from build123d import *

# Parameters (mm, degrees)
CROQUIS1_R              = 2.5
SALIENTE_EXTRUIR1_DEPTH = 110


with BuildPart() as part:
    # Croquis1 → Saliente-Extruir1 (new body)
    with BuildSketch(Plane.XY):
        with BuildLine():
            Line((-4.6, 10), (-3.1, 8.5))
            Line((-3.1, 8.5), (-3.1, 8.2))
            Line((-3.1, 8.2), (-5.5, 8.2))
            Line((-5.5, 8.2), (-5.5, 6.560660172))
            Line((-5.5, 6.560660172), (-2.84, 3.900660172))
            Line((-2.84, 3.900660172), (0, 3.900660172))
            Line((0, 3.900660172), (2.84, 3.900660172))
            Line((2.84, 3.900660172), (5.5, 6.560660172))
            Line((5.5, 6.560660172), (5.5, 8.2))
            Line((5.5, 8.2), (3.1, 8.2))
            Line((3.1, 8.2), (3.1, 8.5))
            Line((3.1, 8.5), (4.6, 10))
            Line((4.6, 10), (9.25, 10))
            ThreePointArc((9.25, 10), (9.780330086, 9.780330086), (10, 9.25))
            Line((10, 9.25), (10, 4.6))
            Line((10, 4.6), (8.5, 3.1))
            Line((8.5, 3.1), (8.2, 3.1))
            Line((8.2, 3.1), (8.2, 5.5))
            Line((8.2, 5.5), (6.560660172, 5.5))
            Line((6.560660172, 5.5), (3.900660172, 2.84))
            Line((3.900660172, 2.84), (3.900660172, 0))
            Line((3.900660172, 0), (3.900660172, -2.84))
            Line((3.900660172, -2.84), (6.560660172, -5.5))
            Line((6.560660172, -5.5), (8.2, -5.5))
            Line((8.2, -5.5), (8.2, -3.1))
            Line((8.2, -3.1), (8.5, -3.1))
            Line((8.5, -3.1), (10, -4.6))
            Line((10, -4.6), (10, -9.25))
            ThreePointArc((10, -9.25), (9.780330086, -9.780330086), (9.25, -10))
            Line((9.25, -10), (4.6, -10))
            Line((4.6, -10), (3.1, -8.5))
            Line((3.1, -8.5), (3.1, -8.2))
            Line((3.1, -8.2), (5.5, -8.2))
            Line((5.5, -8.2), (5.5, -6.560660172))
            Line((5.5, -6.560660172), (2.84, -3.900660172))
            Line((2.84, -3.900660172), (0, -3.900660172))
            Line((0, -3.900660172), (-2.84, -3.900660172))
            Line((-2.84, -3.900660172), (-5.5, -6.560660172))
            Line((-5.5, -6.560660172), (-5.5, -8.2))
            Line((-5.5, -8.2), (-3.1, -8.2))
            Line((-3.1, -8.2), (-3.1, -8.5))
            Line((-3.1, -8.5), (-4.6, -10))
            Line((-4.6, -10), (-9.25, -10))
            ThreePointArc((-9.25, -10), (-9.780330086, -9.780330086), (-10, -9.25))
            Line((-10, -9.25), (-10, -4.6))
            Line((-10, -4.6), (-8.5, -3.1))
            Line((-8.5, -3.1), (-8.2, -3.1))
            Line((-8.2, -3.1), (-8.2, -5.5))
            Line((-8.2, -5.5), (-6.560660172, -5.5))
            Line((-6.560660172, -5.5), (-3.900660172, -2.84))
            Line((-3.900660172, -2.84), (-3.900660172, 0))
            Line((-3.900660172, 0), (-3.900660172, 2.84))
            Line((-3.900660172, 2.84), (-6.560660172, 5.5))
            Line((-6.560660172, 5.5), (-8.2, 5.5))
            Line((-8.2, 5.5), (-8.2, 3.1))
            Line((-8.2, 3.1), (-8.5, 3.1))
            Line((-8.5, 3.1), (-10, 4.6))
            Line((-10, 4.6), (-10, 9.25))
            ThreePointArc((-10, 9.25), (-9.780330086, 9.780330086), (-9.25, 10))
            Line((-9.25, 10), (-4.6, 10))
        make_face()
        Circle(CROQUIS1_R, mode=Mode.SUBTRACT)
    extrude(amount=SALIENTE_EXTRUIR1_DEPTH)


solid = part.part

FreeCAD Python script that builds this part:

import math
import FreeCAD as App
import Part
import Sketcher

doc = App.newDocument("Part")
body = doc.addObject("PartDesign::Body", "Body")

# Sketch on XY plane
sketch1 = body.newObject("Sketcher::SketchObject", "Sketch")
sketch1.AttachmentSupport = (doc.getObject("XY_Plane"), [""])
sketch1.MapMode = "FlatFace"
sketch1.addGeometry(Part.LineSegment(App.Vector(-3.1, 8.5, 0), App.Vector(-4.6, 10, 0)), False)
sketch1.addGeometry(Part.LineSegment(App.Vector(-4.6, 10, 0), App.Vector(-9.25, 10, 0)), False)
sketch1.addGeometry(Part.ArcOfCircle(Part.Circle(App.Vector(-9.25, 9.25, 0), App.Vector(0, 0, 1), 0.75), math.radians(90), math.radians(180)), False)
sketch1.addGeometry(Part.LineSegment(App.Vector(-10, 9.25, 0), App.Vector(-10, 4.6, 0)), False)
sketch1.addGeometry(Part.LineSegment(App.Vector(-10, 4.6, 0), App.Vector(-8.5, 3.1, 0)), False)
sketch1.addGeometry(Part.LineSegment(App.Vector(-8.5, 3.1, 0), App.Vector(-8.2, 3.1, 0)), False)
sketch1.addGeometry(Part.LineSegment(App.Vector(-8.2, 3.1, 0), App.Vector(-8.2, 5.5, 0)), False)
sketch1.addGeometry(Part.LineSegment(App.Vector(-8.2, 5.5, 0), App.Vector(-6.56, 5.5, 0)), False)
sketch1.addGeometry(Part.LineSegment(App.Vector(-6.56, 5.5, 0), App.Vector(-3.9, 2.84, 0)), False)
sketch1.addGeometry(Part.LineSegment(App.Vector(-3.9, 2.84, 0), App.Vector(-3.9, -2.84, 0)), False)
sketch1.addGeometry(Part.LineSegment(App.Vector(-3.9, -2.84, 0), App.Vector(-6.56, -5.5, 0)), False)
sketch1.addGeometry(Part.LineSegment(App.Vector(-6.56, -5.5, 0), App.Vector(-8.2, -5.5, 0)), False)
sketch1.addGeometry(Part.LineSegment(App.Vector(-8.2, -5.5, 0), App.Vector(-8.2, -3.1, 0)), False)
sketch1.addGeometry(Part.LineSegment(App.Vector(-8.2, -3.1, 0), App.Vector(-8.5, -3.1, 0)), False)
sketch1.addGeometry(Part.LineSegment(App.Vector(-8.5, -3.1, 0), App.Vector(-10, -4.6, 0)), False)
sketch1.addGeometry(Part.LineSegment(App.Vector(-10, -4.6, 0), App.Vector(-10, -9.25, 0)), False)
sketch1.addGeometry(Part.ArcOfCircle(Part.Circle(App.Vector(-9.25, -9.25, 0), App.Vector(0, 0, 1), 0.75), math.radians(180), math.radians(270)), False)
sketch1.addGeometry(Part.LineSegment(App.Vector(-9.25, -10, 0), App.Vector(-4.6, -10, 0)), False)
sketch1.addGeometry(Part.LineSegment(App.Vector(-4.6, -10, 0), App.Vector(-3.1, -8.5, 0)), False)
sketch1.addGeometry(Part.LineSegment(App.Vector(-3.1, -8.5, 0), App.Vector(-3.1, -8.2, 0)), False)
sketch1.addGeometry(Part.LineSegment(App.Vector(-3.1, -8.2, 0), App.Vector(-5.5, -8.2, 0)), False)
sketch1.addGeometry(Part.LineSegment(App.Vector(-5.5, -8.2, 0), App.Vector(-5.5, -6.56, 0)), False)
sketch1.addGeometry(Part.LineSegment(App.Vector(-5.5, -6.56, 0), App.Vector(-2.84, -3.9, 0)), False)
sketch1.addGeometry(Part.LineSegment(App.Vector(-2.84, -3.9, 0), App.Vector(2.84, -3.9, 0)), False)
sketch1.addGeometry(Part.LineSegment(App.Vector(2.84, -3.9, 0), App.Vector(5.5, -6.56, 0)), False)
sketch1.addGeometry(Part.LineSegment(App.Vector(5.5, -6.56, 0), App.Vector(5.5, -8.2, 0)), False)
sketch1.addGeometry(Part.LineSegment(App.Vector(5.5, -8.2, 0), App.Vector(3.1, -8.2, 0)), False)
sketch1.addGeometry(Part.LineSegment(App.Vector(3.1, -8.2, 0), App.Vector(3.1, -8.5, 0)), False)
sketch1.addGeometry(Part.LineSegment(App.Vector(3.1, -8.5, 0), App.Vector(4.6, -10, 0)), False)
sketch1.addGeometry(Part.LineSegment(App.Vector(4.6, -10, 0), App.Vector(9.25, -10, 0)), False)
sketch1.addGeometry(Part.ArcOfCircle(Part.Circle(App.Vector(9.25, -9.25, 0), App.Vector(0, 0, 1), 0.75), math.radians(-90), math.radians(0)), False)
sketch1.addGeometry(Part.LineSegment(App.Vector(10, -9.25, 0), App.Vector(10, -4.6, 0)), False)
sketch1.addGeometry(Part.LineSegment(App.Vector(10, -4.6, 0), App.Vector(8.5, -3.1, 0)), False)
sketch1.addGeometry(Part.LineSegment(App.Vector(8.5, -3.1, 0), App.Vector(8.2, -3.1, 0)), False)
sketch1.addGeometry(Part.LineSegment(App.Vector(8.2, -3.1, 0), App.Vector(8.2, -5.5, 0)), False)
sketch1.addGeometry(Part.LineSegment(App.Vector(8.2, -5.5, 0), App.Vector(6.56, -5.5, 0)), False)
sketch1.addGeometry(Part.LineSegment(App.Vector(6.56, -5.5, 0), App.Vector(3.9, -2.84, 0)), False)
sketch1.addGeometry(Part.LineSegment(App.Vector(3.9, -2.84, 0), App.Vector(3.9, 2.84, 0)), False)
sketch1.addGeometry(Part.LineSegment(App.Vector(3.9, 2.84, 0), App.Vector(6.56, 5.5, 0)), False)
sketch1.addGeometry(Part.LineSegment(App.Vector(6.56, 5.5, 0), App.Vector(8.2, 5.5, 0)), False)
sketch1.addGeometry(Part.LineSegment(App.Vector(8.2, 5.5, 0), App.Vector(8.2, 3.1, 0)), False)
sketch1.addGeometry(Part.LineSegment(App.Vector(8.2, 3.1, 0), App.Vector(8.5, 3.1, 0)), False)
sketch1.addGeometry(Part.LineSegment(App.Vector(8.5, 3.1, 0), App.Vector(10, 4.6, 0)), False)
sketch1.addGeometry(Part.LineSegment(App.Vector(10, 4.6, 0), App.Vector(10, 9.25, 0)), False)
sketch1.addGeometry(Part.ArcOfCircle(Part.Circle(App.Vector(9.25, 9.25, 0), App.Vector(0, 0, 1), 0.75), math.radians(0), math.radians(90)), False)
sketch1.addGeometry(Part.LineSegment(App.Vector(9.25, 10, 0), App.Vector(4.6, 10, 0)), False)
sketch1.addGeometry(Part.LineSegment(App.Vector(4.6, 10, 0), App.Vector(3.1, 8.5, 0)), False)
sketch1.addGeometry(Part.LineSegment(App.Vector(3.1, 8.5, 0), App.Vector(3.1, 8.2, 0)), False)
sketch1.addGeometry(Part.LineSegment(App.Vector(3.1, 8.2, 0), App.Vector(5.5, 8.2, 0)), False)
sketch1.addGeometry(Part.LineSegment(App.Vector(5.5, 8.2, 0), App.Vector(5.5, 6.56, 0)), False)
sketch1.addGeometry(Part.LineSegment(App.Vector(5.5, 6.56, 0), App.Vector(2.84, 3.9, 0)), False)
sketch1.addGeometry(Part.LineSegment(App.Vector(2.84, 3.9, 0), App.Vector(-2.84, 3.9, 0)), False)
sketch1.addGeometry(Part.LineSegment(App.Vector(-2.84, 3.9, 0), App.Vector(-5.5, 6.56, 0)), False)
sketch1.addGeometry(Part.LineSegment(App.Vector(-5.5, 6.56, 0), App.Vector(-5.5, 8.2, 0)), False)
sketch1.addGeometry(Part.LineSegment(App.Vector(-5.5, 8.2, 0), App.Vector(-3.1, 8.2, 0)), False)
sketch1.addGeometry(Part.LineSegment(App.Vector(-3.1, 8.2, 0), App.Vector(-3.1, 8.5, 0)), False)
sketch1.addGeometry(Part.Circle(App.Vector(0, 0, 0), App.Vector(0, 0, 1), 2.5), False)
sketch1.addConstraint(Sketcher.Constraint("Coincident", 0, 2, 1, 1))
sketch1.addConstraint(Sketcher.Constraint("Tangent", 1, 2, 2, 1))
sketch1.addConstraint(Sketcher.Constraint("Tangent", 2, 2, 3, 1))
sketch1.addConstraint(Sketcher.Constraint("Coincident", 3, 2, 4, 1))
sketch1.addConstraint(Sketcher.Constraint("Coincident", 4, 2, 5, 1))
sketch1.addConstraint(Sketcher.Constraint("Coincident", 5, 2, 6, 1))
sketch1.addConstraint(Sketcher.Constraint("Coincident", 6, 2, 7, 1))
sketch1.addConstraint(Sketcher.Constraint("Coincident", 7, 2, 8, 1))
sketch1.addConstraint(Sketcher.Constraint("Coincident", 8, 2, 9, 1))
sketch1.addConstraint(Sketcher.Constraint("Coincident", 9, 2, 10, 1))
sketch1.addConstraint(Sketcher.Constraint("Coincident", 10, 2, 11, 1))
sketch1.addConstraint(Sketcher.Constraint("Coincident", 11, 2, 12, 1))
sketch1.addConstraint(Sketcher.Constraint("Coincident", 12, 2, 13, 1))
sketch1.addConstraint(Sketcher.Constraint("Coincident", 13, 2, 14, 1))
sketch1.addConstraint(Sketcher.Constraint("Coincident", 14, 2, 15, 1))
sketch1.addConstraint(Sketcher.Constraint("Tangent", 15, 2, 16, 1))
sketch1.addConstraint(Sketcher.Constraint("Tangent", 16, 2, 17, 1))
sketch1.addConstraint(Sketcher.Constraint("Coincident", 17, 2, 18, 1))
sketch1.addConstraint(Sketcher.Constraint("Coincident", 18, 2, 19, 1))
sketch1.addConstraint(Sketcher.Constraint("Coincident", 19, 2, 20, 1))
sketch1.addConstraint(Sketcher.Constraint("Coincident", 20, 2, 21, 1))
sketch1.addConstraint(Sketcher.Constraint("Coincident", 21, 2, 22, 1))
sketch1.addConstraint(Sketcher.Constraint("Coincident", 22, 2, 23, 1))
sketch1.addConstraint(Sketcher.Constraint("Coincident", 23, 2, 24, 1))
sketch1.addConstraint(Sketcher.Constraint("Coincident", 24, 2, 25, 1))
sketch1.addConstraint(Sketcher.Constraint("Coincident", 25, 2, 26, 1))
sketch1.addConstraint(Sketcher.Constraint("Coincident", 26, 2, 27, 1))
sketch1.addConstraint(Sketcher.Constraint("Coincident", 27, 2, 28, 1))
sketch1.addConstraint(Sketcher.Constraint("Coincident", 28, 2, 29, 1))
sketch1.addConstraint(Sketcher.Constraint("Tangent", 29, 2, 30, 1))
sketch1.addConstraint(Sketcher.Constraint("Tangent", 30, 2, 31, 1))
sketch1.addConstraint(Sketcher.Constraint("Coincident", 31, 2, 32, 1))
sketch1.addConstraint(Sketcher.Constraint("Coincident", 32, 2, 33, 1))
sketch1.addConstraint(Sketcher.Constraint("Coincident", 33, 2, 34, 1))
sketch1.addConstraint(Sketcher.Constraint("Coincident", 34, 2, 35, 1))
sketch1.addConstraint(Sketcher.Constraint("Coincident", 35, 2, 36, 1))
sketch1.addConstraint(Sketcher.Constraint("Coincident", 36, 2, 37, 1))
sketch1.addConstraint(Sketcher.Constraint("Coincident", 37, 2, 38, 1))
sketch1.addConstraint(Sketcher.Constraint("Coincident", 38, 2, 39, 1))
sketch1.addConstraint(Sketcher.Constraint("Coincident", 39, 2, 40, 1))
sketch1.addConstraint(Sketcher.Constraint("Coincident", 40, 2, 41, 1))
sketch1.addConstraint(Sketcher.Constraint("Coincident", 41, 2, 42, 1))
sketch1.addConstraint(Sketcher.Constraint("Coincident", 42, 2, 43, 1))
sketch1.addConstraint(Sketcher.Constraint("Tangent", 43, 2, 44, 1))
sketch1.addConstraint(Sketcher.Constraint("Tangent", 44, 2, 45, 1))
sketch1.addConstraint(Sketcher.Constraint("Coincident", 45, 2, 46, 1))
sketch1.addConstraint(Sketcher.Constraint("Coincident", 46, 2, 47, 1))
sketch1.addConstraint(Sketcher.Constraint("Coincident", 47, 2, 48, 1))
sketch1.addConstraint(Sketcher.Constraint("Coincident", 48, 2, 49, 1))
sketch1.addConstraint(Sketcher.Constraint("Coincident", 49, 2, 50, 1))
sketch1.addConstraint(Sketcher.Constraint("Coincident", 50, 2, 51, 1))
sketch1.addConstraint(Sketcher.Constraint("Coincident", 51, 2, 52, 1))
sketch1.addConstraint(Sketcher.Constraint("Coincident", 52, 2, 53, 1))
sketch1.addConstraint(Sketcher.Constraint("Coincident", 53, 2, 54, 1))
sketch1.addConstraint(Sketcher.Constraint("Coincident", 54, 2, 55, 1))
sketch1.addConstraint(Sketcher.Constraint("Coincident", 55, 2, 0, 1))
sketch1.addConstraint(Sketcher.Constraint("Horizontal", 1))
sketch1.addConstraint(Sketcher.Constraint("Vertical", 3))
sketch1.addConstraint(Sketcher.Constraint("Horizontal", 5))
sketch1.addConstraint(Sketcher.Constraint("Vertical", 6))
sketch1.addConstraint(Sketcher.Constraint("Horizontal", 7))
sketch1.addConstraint(Sketcher.Constraint("Vertical", 9))
sketch1.addConstraint(Sketcher.Constraint("Horizontal", 11))
sketch1.addConstraint(Sketcher.Constraint("Vertical", 12))
sketch1.addConstraint(Sketcher.Constraint("Horizontal", 13))
sketch1.addConstraint(Sketcher.Constraint("Vertical", 15))
sketch1.addConstraint(Sketcher.Constraint("Horizontal", 17))
sketch1.addConstraint(Sketcher.Constraint("Vertical", 19))
sketch1.addConstraint(Sketcher.Constraint("Horizontal", 20))
sketch1.addConstraint(Sketcher.Constraint("Vertical", 21))
sketch1.addConstraint(Sketcher.Constraint("Horizontal", 23))
sketch1.addConstraint(Sketcher.Constraint("Vertical", 25))
sketch1.addConstraint(Sketcher.Constraint("Horizontal", 26))
sketch1.addConstraint(Sketcher.Constraint("Vertical", 27))
sketch1.addConstraint(Sketcher.Constraint("Horizontal", 29))
sketch1.addConstraint(Sketcher.Constraint("Vertical", 31))
sketch1.addConstraint(Sketcher.Constraint("Horizontal", 33))
sketch1.addConstraint(Sketcher.Constraint("Vertical", 34))
sketch1.addConstraint(Sketcher.Constraint("Horizontal", 35))
sketch1.addConstraint(Sketcher.Constraint("Vertical", 37))
sketch1.addConstraint(Sketcher.Constraint("Horizontal", 39))
sketch1.addConstraint(Sketcher.Constraint("Vertical", 40))
sketch1.addConstraint(Sketcher.Constraint("Horizontal", 41))
sketch1.addConstraint(Sketcher.Constraint("Vertical", 43))
sketch1.addConstraint(Sketcher.Constraint("Horizontal", 45))
sketch1.addConstraint(Sketcher.Constraint("Vertical", 47))
sketch1.addConstraint(Sketcher.Constraint("Horizontal", 48))
sketch1.addConstraint(Sketcher.Constraint("Vertical", 49))
sketch1.addConstraint(Sketcher.Constraint("Horizontal", 51))
sketch1.addConstraint(Sketcher.Constraint("Vertical", 53))
sketch1.addConstraint(Sketcher.Constraint("Horizontal", 54))
sketch1.addConstraint(Sketcher.Constraint("Vertical", 55))
sketch1.addConstraint(Sketcher.Constraint("Coincident", 56, 3, -1, 1))
sketch1.addConstraint(Sketcher.Constraint("Equal", 2, 16))
sketch1.addConstraint(Sketcher.Constraint("Equal", 16, 30))
sketch1.addConstraint(Sketcher.Constraint("Equal", 30, 44))
sketch1.addConstraint(Sketcher.Constraint("Symmetric", 2, 3, 30, 3, -1, 1))
sketch1.addConstraint(Sketcher.Constraint("Symmetric", 16, 3, 44, 3, -1, 1))
sketch1.addConstraint(Sketcher.Constraint("Symmetric", 4, 2, 32, 2, -1, 1))
sketch1.addConstraint(Sketcher.Constraint("Symmetric", 6, 2, 34, 2, -1, 1))
sketch1.addConstraint(Sketcher.Constraint("Symmetric", 8, 2, 36, 2, -1, 1))
sketch1.addConstraint(Sketcher.Constraint("Symmetric", 10, 2, 38, 2, -1, 1))
sketch1.addConstraint(Sketcher.Constraint("Symmetric", 12, 2, 40, 2, -1, 1))
sketch1.addConstraint(Sketcher.Constraint("Symmetric", 18, 2, 46, 2, -1, 1))
sketch1.addConstraint(Sketcher.Constraint("Symmetric", 20, 2, 48, 2, -1, 1))
sketch1.addConstraint(Sketcher.Constraint("Symmetric", 22, 2, 50, 2, -1, 1))
sketch1.addConstraint(Sketcher.Constraint("Symmetric", 24, 2, 52, 2, -1, 1))
sketch1.addConstraint(Sketcher.Constraint("Symmetric", 26, 2, 54, 2, -1, 1))
sketch1.addConstraint(Sketcher.Constraint("Symmetric", 16, 3, 30, 3, -2))
sketch1.addConstraint(Sketcher.Constraint("Symmetric", 21, 2, 24, 2, -2))
sketch1.addConstraint(Sketcher.Constraint("Symmetric", 19, 2, 26, 2, -2))
sketch1.addConstraint(Sketcher.Constraint("Symmetric", 13, 2, 32, 2, -2))
sketch1.addConstraint(Sketcher.Constraint("Symmetric", 11, 2, 34, 2, -2))
sketch1.addConstraint(Sketcher.Constraint("Parallel", 0, 4))
sketch1.addConstraint(Sketcher.Constraint("Parallel", 4, 8))
sketch1.addConstraint(Sketcher.Constraint("Perpendicular", 8, 10))
sketch1.addConstraint(Sketcher.Constraint("Parallel", 10, 14))
sketch1.addConstraint(Sketcher.Constraint("Parallel", 14, 18))
sketch1.addConstraint(Sketcher.Constraint("Parallel", 18, 22))
sketch1.addConstraint(Sketcher.Constraint("Perpendicular", 22, 24))
sketch1.addConstraint(Sketcher.Constraint("Parallel", 24, 28))
sketch1.addConstraint(Sketcher.Constraint("Parallel", 28, 32))
sketch1.addConstraint(Sketcher.Constraint("Parallel", 32, 36))
sketch1.addConstraint(Sketcher.Constraint("Perpendicular", 36, 38))
sketch1.addConstraint(Sketcher.Constraint("Parallel", 38, 42))
sketch1.addConstraint(Sketcher.Constraint("Parallel", 42, 46))
sketch1.addConstraint(Sketcher.Constraint("Parallel", 46, 50))
sketch1.addConstraint(Sketcher.Constraint("Perpendicular", 50, 52))
sketch1.addConstraint(Sketcher.Constraint("Horizontal", 18, 2, 27, 2))
sketch1.addConstraint(Sketcher.Constraint("Horizontal", 14, 2, 31, 2))
sketch1.addConstraint(Sketcher.Constraint("Horizontal", 9, 2, 36, 2))
sketch1.addConstraint(Sketcher.Constraint("Horizontal", 3, 2, 42, 2))
sketch1.addConstraint(Sketcher.Constraint("Horizontal", 46, 2, 55, 2))
sketch1.addConstraint(Sketcher.Constraint("Equal", 45, 3))
sketch1.addConstraint(Sketcher.Constraint("Equal", 54, 6))
sketch1.addConstraint(Sketcher.Constraint("Equal", 51, 9))
sketch1.addConstraint(Sketcher.Constraint("Equal", 41, 19))
sketch1.addConstraint(Sketcher.Constraint("Equal", 39, 21))
sketch1.addConstraint(Sketcher.Constraint("Equal", 0, 4))
sketch1.addConstraint(Sketcher.Constraint("Equal", 10, 22))
sketch1.addConstraint(Sketcher.Constraint("Diameter", 56, 5.0))
sketch1.addConstraint(Sketcher.Constraint("Radius", 2, 0.75))
sketch1.addConstraint(Sketcher.Constraint("DistanceX", 5, 1, 5, 2, 0.3))
sketch1.addConstraint(Sketcher.Constraint("DistanceX", 20, 2, 20, 1, 2.4))
sketch1.addConstraint(Sketcher.Constraint("DistanceY", -1, 1, 0, 2, 10.0))
sketch1.addConstraint(Sketcher.Constraint("DistanceX", 1, 2, 1, 1, 4.65))
sketch1.addConstraint(Sketcher.Constraint("DistanceX", 23, 1, 23, 2, 5.68))
sketch1.addConstraint(Sketcher.Constraint("DistanceX", 4, 2, -1, 1, 8.5))
sketch1.addConstraint(Sketcher.Constraint("DistanceX", 7, 1, 7, 2, 1.63934))
pad1 = body.newObject("PartDesign::Pad", "Pad")
pad1.Profile = sketch1
pad1.Length = 110

doc.recompute()
